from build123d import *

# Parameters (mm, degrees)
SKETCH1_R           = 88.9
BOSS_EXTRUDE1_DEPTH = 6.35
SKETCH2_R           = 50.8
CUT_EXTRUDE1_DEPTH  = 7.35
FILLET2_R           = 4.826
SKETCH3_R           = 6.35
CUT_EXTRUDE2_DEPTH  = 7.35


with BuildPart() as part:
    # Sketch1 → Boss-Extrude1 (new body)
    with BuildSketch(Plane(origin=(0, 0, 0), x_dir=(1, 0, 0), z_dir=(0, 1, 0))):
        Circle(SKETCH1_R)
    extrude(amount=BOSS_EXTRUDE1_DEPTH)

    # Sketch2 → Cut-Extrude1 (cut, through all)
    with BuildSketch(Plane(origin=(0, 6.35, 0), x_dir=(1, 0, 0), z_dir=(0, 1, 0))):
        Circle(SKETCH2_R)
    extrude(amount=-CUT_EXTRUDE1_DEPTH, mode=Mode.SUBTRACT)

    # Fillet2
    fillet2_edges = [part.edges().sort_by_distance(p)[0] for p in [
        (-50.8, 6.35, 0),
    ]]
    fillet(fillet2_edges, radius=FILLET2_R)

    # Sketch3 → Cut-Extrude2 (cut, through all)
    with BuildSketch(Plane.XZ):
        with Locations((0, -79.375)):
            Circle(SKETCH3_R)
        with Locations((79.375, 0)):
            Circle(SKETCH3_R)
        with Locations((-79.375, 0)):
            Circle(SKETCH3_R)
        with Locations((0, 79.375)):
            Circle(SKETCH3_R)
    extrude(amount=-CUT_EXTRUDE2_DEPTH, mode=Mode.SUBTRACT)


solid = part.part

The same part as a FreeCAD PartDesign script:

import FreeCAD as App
import Part
import Sketcher

V = App.Vector
Q = App.Units.Quantity


def edges_at(feature, points):
    """Names of the edges that pass closest to the given points."""
    edges = feature.Shape.Edges
    near = lambda p: min(range(len(edges)), key=lambda i: edges[i].distToShape(Part.Vertex(*p))[0])
    return sorted({f"Edge{near(p) + 1}" for p in points})

doc = App.newDocument("Part")
body = doc.addObject("PartDesign::Body", "Body")

# Sketch on XZ plane
sketch1 = body.newObject("Sketcher::SketchObject", "Sketch")
sketch1.AttachmentSupport = (doc.getObject("XZ_Plane"), [""])
sketch1.MapMode = "FlatFace"
sketch1.addGeometry(Part.Circle(V(0, 0, 0), V(0, 0, 1), 89), False)
sketch1.addConstraint(Sketcher.Constraint("Coincident", 0, 3, -1, 1))
sketch1.addConstraint(Sketcher.Constraint("Diameter", 0, Q("7 in")))
pad1 = body.newObject("PartDesign::Pad", "Pad")
pad1.Profile = sketch1
pad1.Length = Q("0.25 in")
pad1.Reversed = True

# Sketch on XZ plane
sketch2 = body.newObject("Sketcher::SketchObject", "Sketch001")
sketch2.AttachmentSupport = (doc.getObject("XZ_Plane"), [""])
sketch2.MapMode = "FlatFace"
sketch2.AttachmentOffset = App.Placement(V(0, 0, -0.25 * 25.4), App.Rotation())
sketch2.addGeometry(Part.Circle(V(0, 0, 0), V(0, 0, 1), 51), False)
sketch2.addConstraint(Sketcher.Constraint("Coincident", 0, 3, -1, 1))
sketch2.addConstraint(Sketcher.Constraint("Diameter", 0, Q("4 in")))
pocket1 = body.newObject("PartDesign::Pocket", "Pocket")
pocket1.Profile = sketch2
pocket1.Type = "ThroughAll"
pocket1.Reversed = True
doc.recompute()

fillet = body.newObject("PartDesign::Fillet", "Fillet")
fillet.Base = (pocket1, edges_at(pocket1, [(-50.8, 6.35, 0)]))
fillet.Radius = Q("0.19 in")

# Sketch on XZ plane
sketch3 = body.newObject("Sketcher::SketchObject", "Sketch002")
sketch3.AttachmentSupport = (doc.getObject("XZ_Plane"), [""])
sketch3.MapMode = "FlatFace"
sketch3.addGeometry(Part.Circle(V(0, -79, 0), V(0, 0, 1), 6), False)
sketch3.addGeometry(Part.Circle(V(79, 0, 0), V(0, 0, 1), 6), False)
sketch3.addGeometry(Part.Circle(V(-79, 0, 0), V(0, 0, 1), 6), False)
sketch3.addGeometry(Part.Circle(V(0, 79, 0), V(0, 0, 1), 6), False)
sketch3.addConstraint(Sketcher.Constraint("Equal", 0, 1))
sketch3.addConstraint(Sketcher.Constraint("Equal", 1, 2))
sketch3.addConstraint(Sketcher.Constraint("Equal", 2, 3))
sketch3.addConstraint(Sketcher.Constraint("Symmetric", 1, 3, 2, 3, -1, 1))
sketch3.addConstraint(Sketcher.Constraint("Symmetric", 0, 3, 3, 3, -1, 1))
sketch3.addConstraint(Sketcher.Constraint("PointOnObject", 0, 3, -2))
sketch3.addConstraint(Sketcher.Constraint("PointOnObject", 1, 3, -1))
sketch3.addConstraint(Sketcher.Constraint("Diameter", 0, Q("0.5 in")))
sketch3.addConstraint(Sketcher.Constraint("DistanceX", 2, 3, 1, 3, Q("6.25 in")))
sketch3.addConstraint(Sketcher.Constraint("DistanceY", 0, 3, 3, 3, Q("6.25 in")))
pocket2 = body.newObject("PartDesign::Pocket", "Pocket001")
pocket2.Profile = sketch3
pocket2.Type = "ThroughAll"

doc.recompute()
